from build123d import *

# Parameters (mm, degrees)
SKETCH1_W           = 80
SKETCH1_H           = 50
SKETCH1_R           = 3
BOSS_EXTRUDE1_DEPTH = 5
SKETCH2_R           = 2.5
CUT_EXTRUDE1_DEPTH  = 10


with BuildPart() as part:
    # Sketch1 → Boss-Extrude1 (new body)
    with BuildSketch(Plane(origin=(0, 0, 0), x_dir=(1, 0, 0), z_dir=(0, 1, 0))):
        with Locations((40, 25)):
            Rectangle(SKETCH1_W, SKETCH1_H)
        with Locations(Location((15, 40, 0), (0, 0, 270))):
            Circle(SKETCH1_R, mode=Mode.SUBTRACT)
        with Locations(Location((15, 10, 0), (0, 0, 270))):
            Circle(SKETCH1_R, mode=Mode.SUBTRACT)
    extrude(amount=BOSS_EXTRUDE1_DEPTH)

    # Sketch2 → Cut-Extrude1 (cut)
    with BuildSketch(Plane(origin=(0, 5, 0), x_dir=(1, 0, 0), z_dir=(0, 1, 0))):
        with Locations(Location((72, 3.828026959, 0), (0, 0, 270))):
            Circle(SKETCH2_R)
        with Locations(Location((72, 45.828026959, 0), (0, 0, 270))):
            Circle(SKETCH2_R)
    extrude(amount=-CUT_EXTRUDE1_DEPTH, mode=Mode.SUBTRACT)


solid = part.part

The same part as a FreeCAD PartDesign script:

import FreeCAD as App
import Part
import Sketcher
from FreeCAD import Vector


def add_polygon(sketch, points):
    """Adds a closed chain of lines whose ends are joined by coincident constraints."""
    first, n = sketch.GeometryCount, len(points)
    for a, b in zip(points, points[1:] + points[:1]):
        sketch.addGeometry(Part.LineSegment(App.Vector(*a, 0), App.Vector(*b, 0)), False)
    for i in range(n):
        sketch.addConstraint(Sketcher.Constraint("Coincident", first + i, 2, first + (i + 1) % n, 1))

doc = App.newDocument("Part")
body = doc.addObject("PartDesign::Body", "Body")

sketch1 = body.newObject("Sketcher::SketchObject", "Sketch")
sketch1.AttachmentSupport = (doc.getObject("XZ_Plane"), [""])
sketch1.MapMode = "FlatFace"
add_polygon(sketch1, [(0, -50), (0, 0), (80, 0), (80, -50)])
sketch1.addGeometry(Part.Circle(Vector(15, -10, 0), Vector(0, 0, 1), 3), False)
sketch1.addGeometry(Part.Circle(Vector(15, -40, 0), Vector(0, 0, 1), 3), False)
sketch1.addConstraint([
    Sketcher.Constraint("Vertical", 0),
    Sketcher.Constraint("Horizontal", 1),
    Sketcher.Constraint("Vertical", 2),
    Sketcher.Constraint("Horizontal", 3),
    Sketcher.Constraint("Coincident", 0, 2, -1, 1),
    Sketcher.Constraint("Equal", 4, 5),
    Sketcher.Constraint("Vertical", 4, 3, 5, 3),
    Sketcher.Constraint("Diameter", 4, 6.0),
    Sketcher.Constraint("DistanceX", 1, 1, 1, 2, 80.0),
    Sketcher.Constraint("DistanceY", 0, 1, 0, 2, 50.0),
    Sketcher.Constraint("DistanceX", -1, 1, 4, 3, 15.0),
    Sketcher.Constraint("DistanceY", 4, 3, -1, 1, 10.0),
    Sketcher.Constraint("DistanceY", 5, 3, -1, 1, 40.0),
])
pad1 = body.newObject("PartDesign::Pad", "Pad")
pad1.Profile = sketch1
pad1.Length = 5
pad1.Reversed = True

sketch2 = body.newObject("Sketcher::SketchObject", "Sketch001")
sketch2.AttachmentSupport = (doc.getObject("XZ_Plane"), [""])
sketch2.MapMode = "FlatFace"
sketch2.AttachmentOffset = App.Placement(Vector(0, 0, -5), App.Rotation())
sketch2.addGeometry([
    Part.Circle(Vector(72, -3.8, 0), Vector(0, 0, 1), 2.5),
    Part.Circle(Vector(72, -45.8, 0), Vector(0, 0, 1), 2.5),
], False)
sketch2.addConstraint([
    Sketcher.Constraint("Equal", 0, 1),
    Sketcher.Constraint("Vertical", 0, 3, 1, 3),
    Sketcher.Constraint("Diameter", 0, 5.0),
    Sketcher.Constraint("DistanceX", -1, 1, 0, 3, 72.0),
    Sketcher.Constraint("DistanceY", 1, 3, 0, 3, 42.0),
    Sketcher.Constraint("DistanceY", 0, 3, -1, 1, 3.828027),
])
pocket1 = body.newObject("PartDesign::Pocket", "Pocket")
pocket1.Profile = sketch2
pocket1.Length = 10
pocket1.Reversed = True

doc.recompute()
